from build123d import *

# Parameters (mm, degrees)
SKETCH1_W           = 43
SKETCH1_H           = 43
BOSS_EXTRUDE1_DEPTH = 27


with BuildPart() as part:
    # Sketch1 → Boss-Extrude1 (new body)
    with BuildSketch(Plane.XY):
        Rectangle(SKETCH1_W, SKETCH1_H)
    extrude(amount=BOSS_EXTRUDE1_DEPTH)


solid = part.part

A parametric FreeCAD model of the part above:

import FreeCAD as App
import Part
import Sketcher
from FreeCAD import Vector


def add_polygon(sketch, points):
    """Adds a closed chain of lines whose ends are joined by coincident constraints."""
    first, n = sketch.GeometryCount, len(points)
    for a, b in zip(points, points[1:] + points[:1]):
        sketch.addGeometry(Part.LineSegment(App.Vector(*a, 0), App.Vector(*b, 0)), False)
    for i in range(n):
        sketch.addConstraint(Sketcher.Constraint("Coincident", first + i, 2, first + (i + 1) % n, 1))

doc = App.newDocument("Part")
body = doc.addObject("PartDesign::Body", "Body")

sketch1 = doc.addObject("Sketcher::SketchObject", "Sketch")
body.addObject(sketch1)
sketch1.AttachmentSupport = (doc.XY_Plane, [""])
sketch1.MapMode = "FlatFace"
add_polygon(sketch1, [(-21.5, 21.5), (-21.5, -21.5), (21.5, -21.5), (21.5, 21.5)])
sketch1.addConstraint(Sketcher.Constraint("Vertical", 0))
sketch1.addConstraint(Sketcher.Constraint("Horizontal", 1))
sketch1.addConstraint(Sketcher.Constraint("Vertical", 2))
sketch1.addConstraint(Sketcher.Constraint("Horizontal", 3))
sketch1.addConstraint(Sketcher.Constraint("Symmetric", 0, 2, 2, 2, -1, 1))
sketch1.addConstraint(Sketcher.Constraint("Equal", 3, 0))
sketch1.addConstraint(Sketcher.Constraint("DistanceX", 1, 1, 1, 2, 43.0))
pad1 = doc.addObject("PartDesign::Pad", "Pad")
body.addObject(pad1)
pad1.Profile = sketch1
pad1.Length = 27

doc.recompute()
